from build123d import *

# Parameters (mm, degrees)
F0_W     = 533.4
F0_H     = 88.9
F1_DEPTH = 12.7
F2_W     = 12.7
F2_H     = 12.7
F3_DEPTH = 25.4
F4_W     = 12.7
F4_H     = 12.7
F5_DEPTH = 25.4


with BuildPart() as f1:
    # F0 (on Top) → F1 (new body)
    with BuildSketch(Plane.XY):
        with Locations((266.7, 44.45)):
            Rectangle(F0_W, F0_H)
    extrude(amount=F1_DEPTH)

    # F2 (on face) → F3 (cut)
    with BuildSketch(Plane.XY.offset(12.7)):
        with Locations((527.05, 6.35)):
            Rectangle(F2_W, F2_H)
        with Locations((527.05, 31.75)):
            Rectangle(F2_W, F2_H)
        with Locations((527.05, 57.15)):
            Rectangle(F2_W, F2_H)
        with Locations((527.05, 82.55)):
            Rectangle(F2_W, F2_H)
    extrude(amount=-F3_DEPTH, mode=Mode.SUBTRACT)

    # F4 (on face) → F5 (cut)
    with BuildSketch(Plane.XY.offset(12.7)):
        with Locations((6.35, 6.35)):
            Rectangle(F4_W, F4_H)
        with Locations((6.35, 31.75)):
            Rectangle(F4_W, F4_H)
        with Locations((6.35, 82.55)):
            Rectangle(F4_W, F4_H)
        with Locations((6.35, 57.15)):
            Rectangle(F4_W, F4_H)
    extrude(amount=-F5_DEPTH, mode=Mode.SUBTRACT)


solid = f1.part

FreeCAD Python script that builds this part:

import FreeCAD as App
import Part
import Sketcher
from FreeCAD import Vector
Q = App.Units.Quantity


def add_polygon(sketch, points):
    """Adds a closed chain of lines whose ends are joined by coincident constraints."""
    first, n = sketch.GeometryCount, len(points)
    for a, b in zip(points, points[1:] + points[:1]):
        sketch.addGeometry(Part.LineSegment(App.Vector(*a, 0), App.Vector(*b, 0)), False)
    for i in range(n):
        sketch.addConstraint(Sketcher.Constraint("Coincident", first + i, 2, first + (i + 1) % n, 1))

doc = App.newDocument("Part")
body = doc.addObject("PartDesign::Body", "Body")

# Sketch on XY plane
sketch1 = body.newObject("Sketcher::SketchObject", "Sketch")
sketch1.AttachmentSupport = (doc.getObject("XY_Plane"), [""])
sketch1.MapMode = "FlatFace"
add_polygon(sketch1, [(0, 89), (0, 0), (533, 0), (533, 89)])  # lines 0-3
sketch1.addConstraint([
    Sketcher.Constraint("Vertical", 0),
    Sketcher.Constraint("Horizontal", 1),
    Sketcher.Constraint("Vertical", 2),
    Sketcher.Constraint("Horizontal", 3),
    Sketcher.Constraint("Coincident", 0, 2, -1, 1),
    Sketcher.Constraint("DistanceX", 1, 1, 1, 2, Q("21 in")),
    Sketcher.Constraint("DistanceY", 0, 2, 0, 1, Q("3.5 in")),
])
pad1 = body.newObject("PartDesign::Pad", "Pad")
pad1.Profile = sketch1
pad1.Length = Q("0.5 in")

# Sketch on XY plane
sketch2 = body.newObject("Sketcher::SketchObject", "Sketch001")
sketch2.AttachmentSupport = (doc.getObject("XY_Plane"), [""])
sketch2.MapMode = "FlatFace"
sketch2.AttachmentOffset = App.Placement(Vector(0, 0, 0.5 * 25.4), App.Rotation())
add_polygon(sketch2, [(521, 13), (521, 0), (533, 0), (533, 13)])  # lines 0-3
add_polygon(sketch2, [(521, 38), (521, 25), (533, 25), (533, 38)])  # lines 4-7
add_polygon(sketch2, [(521, 64), (521, 51), (533, 51), (533, 64)])  # lines 8-11
add_polygon(sketch2, [(521, 89), (521, 76), (533, 76), (533, 89)])  # lines 12-15
sketch2.addConstraint([
    Sketcher.Constraint("Vertical", 0),
    Sketcher.Constraint("Horizontal", 1),
    Sketcher.Constraint("Vertical", 2),
    Sketcher.Constraint("Horizontal", 3),
    Sketcher.Constraint("Vertical", 4),
    Sketcher.Constraint("Horizontal", 5),
    Sketcher.Constraint("Vertical", 6),
    Sketcher.Constraint("Horizontal", 7),
    Sketcher.Constraint("Vertical", 8),
    Sketcher.Constraint("Horizontal", 9),
    Sketcher.Constraint("Vertical", 10),
    Sketcher.Constraint("Horizontal", 11),
    Sketcher.Constraint("Vertical", 12),
    Sketcher.Constraint("Horizontal", 13),
    Sketcher.Constraint("Vertical", 14),
    Sketcher.Constraint("Horizontal", 15),
    Sketcher.Constraint("PointOnObject", 0, 2, -1),
    Sketcher.Constraint("Vertical", 3, 2, 4, 2),
    Sketcher.Constraint("Vertical", 2, 2, 5, 2),
    Sketcher.Constraint("Vertical", 7, 2, 8, 2),
    Sketcher.Constraint("Vertical", 6, 2, 9, 2),
    Sketcher.Constraint("Vertical", 11, 2, 12, 2),
    Sketcher.Constraint("Vertical", 10, 2, 13, 2),
    Sketcher.Constraint("Equal", 15, 0),
    Sketcher.Constraint("Equal", 2, 4),
    Sketcher.Constraint("Equal", 6, 8),
    Sketcher.Constraint("Equal", 10, 12),
    Sketcher.Constraint("DistanceX", 1, 1, 1, 2, Q("0.5 in")),
    Sketcher.Constraint("DistanceX", -1, 1, 1, 2, Q("21 in")),
    Sketcher.Constraint("DistanceY", -1, 1, 4, 2, Q("1 in")),
    Sketcher.Constraint("DistanceY", -1, 1, 8, 2, Q("2 in")),
    Sketcher.Constraint("DistanceY", -1, 1, 12, 2, Q("3 in")),
])
pocket1 = body.newObject("PartDesign::Pocket", "Pocket")
pocket1.Profile = sketch2
pocket1.Length = Q("1 in")

# Sketch on XY plane
sketch3 = body.newObject("Sketcher::SketchObject", "Sketch002")
sketch3.AttachmentSupport = (doc.getObject("XY_Plane"), [""])
sketch3.MapMode = "FlatFace"
sketch3.AttachmentOffset = App.Placement(Vector(0, 0, 0.5 * 25.4), App.Rotation())
add_polygon(sketch3, [(0, 13), (0, 0), (13, 0), (13, 13)])  # lines 0-3
add_polygon(sketch3, [(0, 38), (0, 25), (13, 25), (13, 38)])  # lines 4-7
add_polygon(sketch3, [(0, 89), (0, 76), (13, 76), (13, 89)])  # lines 8-11
add_polygon(sketch3, [(0, 64), (0, 51), (13, 51), (13, 64)])  # lines 12-15
sketch3.addConstraint([
    Sketcher.Constraint("Vertical", 0),
    Sketcher.Constraint("Horizontal", 1),
    Sketcher.Constraint("Vertical", 2),
    Sketcher.Constraint("Horizontal", 3),
    Sketcher.Constraint("Vertical", 4),
    Sketcher.Constraint("Horizontal", 5),
    Sketcher.Constraint("Vertical", 6),
    Sketcher.Constraint("Horizontal", 7),
    Sketcher.Constraint("Vertical", 8),
    Sketcher.Constraint("Horizontal", 9),
    Sketcher.Constraint("Vertical", 10),
    Sketcher.Constraint("Horizontal", 11),
    Sketcher.Constraint("Vertical", 12),
    Sketcher.Constraint("Horizontal", 13),
    Sketcher.Constraint("Vertical", 14),
    Sketcher.Constraint("Horizontal", 15),
    Sketcher.Constraint("Coincident", 0, 2, -1, 1),
    Sketcher.Constraint("PointOnObject", 4, 2, -2),
    Sketcher.Constraint("PointOnObject", 8, 2, -2),
    Sketcher.Constraint("PointOnObject", 12, 2, -2),
    Sketcher.Constraint("Vertical", 2, 2, 5, 2),
    Sketcher.Constraint("Vertical", 6, 2, 9, 2),
    Sketcher.Constraint("Vertical", 10, 2, 13, 2),
    Sketcher.Constraint("Equal", 15, 0),
    Sketcher.Constraint("Equal", 2, 4),
    Sketcher.Constraint("Equal", 6, 8),
    Sketcher.Constraint("Equal", 10, 12),
    Sketcher.Constraint("DistanceX", 1, 1, 1, 2, Q("0.5 in")),
    Sketcher.Constraint("DistanceY", -1, 1, 4, 2, Q("1 in")),
    Sketcher.Constraint("DistanceY", -1, 1, 8, 2, Q("3 in")),
    Sketcher.Constraint("DistanceY", -1, 1, 12, 2, Q("2 in")),
])
pocket2 = body.newObject("PartDesign::Pocket", "Pocket001")
pocket2.Profile = sketch3
pocket2.Length = Q("1 in")

doc.recompute()
